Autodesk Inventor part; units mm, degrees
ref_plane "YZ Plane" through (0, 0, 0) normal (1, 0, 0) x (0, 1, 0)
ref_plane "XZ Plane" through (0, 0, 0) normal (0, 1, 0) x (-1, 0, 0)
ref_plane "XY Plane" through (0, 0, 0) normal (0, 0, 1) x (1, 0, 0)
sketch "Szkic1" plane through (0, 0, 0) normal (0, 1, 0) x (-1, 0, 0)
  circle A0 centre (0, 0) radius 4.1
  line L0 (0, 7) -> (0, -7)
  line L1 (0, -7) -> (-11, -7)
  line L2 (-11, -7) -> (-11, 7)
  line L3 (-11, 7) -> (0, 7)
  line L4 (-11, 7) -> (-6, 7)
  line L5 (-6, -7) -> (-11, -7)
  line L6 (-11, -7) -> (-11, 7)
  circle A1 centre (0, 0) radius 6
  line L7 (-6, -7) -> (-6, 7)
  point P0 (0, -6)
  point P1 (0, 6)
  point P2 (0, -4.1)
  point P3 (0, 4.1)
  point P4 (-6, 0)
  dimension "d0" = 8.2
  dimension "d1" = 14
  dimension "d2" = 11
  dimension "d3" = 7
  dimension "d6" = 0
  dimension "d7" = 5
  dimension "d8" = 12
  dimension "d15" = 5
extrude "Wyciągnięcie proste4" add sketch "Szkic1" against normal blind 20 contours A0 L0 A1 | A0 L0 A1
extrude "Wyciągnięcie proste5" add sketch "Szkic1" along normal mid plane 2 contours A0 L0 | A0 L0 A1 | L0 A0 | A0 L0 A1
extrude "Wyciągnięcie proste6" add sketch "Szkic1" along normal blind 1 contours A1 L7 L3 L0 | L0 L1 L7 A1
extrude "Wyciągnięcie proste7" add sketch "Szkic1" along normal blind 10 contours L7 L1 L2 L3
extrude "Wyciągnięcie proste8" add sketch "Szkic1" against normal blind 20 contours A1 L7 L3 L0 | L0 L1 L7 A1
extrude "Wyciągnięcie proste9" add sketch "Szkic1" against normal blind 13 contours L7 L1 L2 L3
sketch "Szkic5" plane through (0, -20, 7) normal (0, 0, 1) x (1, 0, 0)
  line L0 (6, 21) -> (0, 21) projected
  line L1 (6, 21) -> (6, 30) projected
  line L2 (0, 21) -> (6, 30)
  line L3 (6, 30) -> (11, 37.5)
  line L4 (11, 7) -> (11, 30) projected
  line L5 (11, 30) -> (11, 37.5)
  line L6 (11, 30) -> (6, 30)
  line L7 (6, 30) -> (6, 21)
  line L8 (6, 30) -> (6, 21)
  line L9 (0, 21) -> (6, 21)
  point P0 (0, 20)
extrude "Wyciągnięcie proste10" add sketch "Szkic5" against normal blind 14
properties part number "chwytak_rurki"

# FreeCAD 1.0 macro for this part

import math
import FreeCAD as App
import Part
import Sketcher
Q = App.Units.Quantity


def add_polygon(sketch, points):
    """Adds a closed chain of lines whose ends are joined by coincident constraints."""
    first, n = sketch.GeometryCount, len(points)
    for a, b in zip(points, points[1:] + points[:1]):
        sketch.addGeometry(Part.LineSegment(App.Vector(*a, 0), App.Vector(*b, 0)), False)
    for i in range(n):
        sketch.addConstraint(Sketcher.Constraint("Coincident", first + i, 2, first + (i + 1) % n, 1))

doc = App.newDocument("Part")
body = doc.addObject("PartDesign::Body", "Body")

# Sketch on XZ plane
sketch1 = body.newObject("Sketcher::SketchObject", "Sketch")
sketch1.AttachmentSupport = (doc.getObject("XZ_Plane"), [""])
sketch1.MapMode = "FlatFace"
sketch1.addGeometry([
    Part.Circle(App.Vector(0, 0, 0), App.Vector(0, 0, 1), 6),
    Part.Circle(App.Vector(0, 0, 0), App.Vector(0, 0, 1), 4.1),
], False)
sketch1.addConstraint([
    Sketcher.Constraint("Coincident", 0, 3, -1, 1),
    Sketcher.Constraint("Coincident", 1, 3, -1, 1),
    Sketcher.Constraint("Diameter", 0, Q("12 mm")),
    Sketcher.Constraint("Diameter", 1, Q("8.2 mm")),
])
pad1 = body.newObject("PartDesign::Pad", "Pad")
pad1.Profile = sketch1
pad1.Length = 20

# Sketch on XZ plane
sketch2 = body.newObject("Sketcher::SketchObject", "Sketch001")
sketch2.AttachmentSupport = (doc.getObject("XZ_Plane"), [""])
sketch2.MapMode = "FlatFace"
sketch2.addGeometry(Part.Circle(App.Vector(0, 0, 0), App.Vector(0, 0, 1), 6), False)
sketch2.addConstraint([
    Sketcher.Constraint("Coincident", 0, 3, -1, 1),
    Sketcher.Constraint("Diameter", 0, Q("12 mm")),
])
pad2 = body.newObject("PartDesign::Pad", "Pad001")
pad2.Profile = sketch2
pad2.Length = 2
pad2.Midplane = True

# Sketch on XZ plane
sketch3 = body.newObject("Sketcher::SketchObject", "Sketch002")
sketch3.AttachmentSupport = (doc.getObject("XZ_Plane"), [""])
sketch3.MapMode = "FlatFace"
sketch3.addGeometry([
    Part.ArcOfCircle(Part.Circle(App.Vector(0, 0, 0), App.Vector(0, 0, 1), 6), math.radians(0), math.radians(90)),  # 0
    Part.LineSegment(App.Vector(0, 6, 0), App.Vector(0, 7, 0)),  # 1
    Part.LineSegment(App.Vector(0, 7, 0), App.Vector(6, 7, 0)),  # 2
    Part.LineSegment(App.Vector(6, 7, 0), App.Vector(6, 0, 0)),  # 3
    Part.LineSegment(App.Vector(0, -7, 0), App.Vector(0, -6, 0)),  # 4
    Part.ArcOfCircle(Part.Circle(App.Vector(0, 0, 0), App.Vector(0, 0, 1), 6), math.radians(-90), math.radians(0)),  # 5
    Part.LineSegment(App.Vector(6, 0, 0), App.Vector(6, -7, 0)),  # 6
    Part.LineSegment(App.Vector(6, -7, 0), App.Vector(0, -7, 0)),  # 7
], False)
sketch3.addConstraint([
    Sketcher.Constraint("Coincident", 0, 2, 1, 1),
    Sketcher.Constraint("Coincident", 1, 2, 2, 1),
    Sketcher.Constraint("Coincident", 2, 2, 3, 1),
    Sketcher.Constraint("Tangent", 3, 2, 0, 1),
    Sketcher.Constraint("Coincident", 4, 2, 5, 1),
    Sketcher.Constraint("Tangent", 5, 2, 6, 1),
    Sketcher.Constraint("Coincident", 6, 2, 7, 1),
    Sketcher.Constraint("Coincident", 7, 2, 4, 1),
    Sketcher.Constraint("Vertical", 1),
    Sketcher.Constraint("Horizontal", 2),
    Sketcher.Constraint("Vertical", 3),
    Sketcher.Constraint("Vertical", 4),
    Sketcher.Constraint("Vertical", 6),
    Sketcher.Constraint("Horizontal", 7),
    Sketcher.Constraint("Coincident", 0, 3, -1, 1),
    Sketcher.Constraint("Coincident", 5, 3, -1, 1),
    Sketcher.Constraint("Equal", 0, 5),
    Sketcher.Constraint("Symmetric", 1, 2, 7, 2, -1, 1),
    Sketcher.Constraint("PointOnObject", 0, 2, -2),
    Sketcher.Constraint("Radius", 0, Q("6 mm")),
    Sketcher.Constraint("DistanceY", 3, 2, 3, 1, Q("7 mm")),
])
pad3 = body.newObject("PartDesign::Pad", "Pad002")
pad3.Profile = sketch3
pad3.Length = 1
pad3.Reversed = True

# Sketch on XZ plane
sketch4 = body.newObject("Sketcher::SketchObject", "Sketch003")
sketch4.AttachmentSupport = (doc.getObject("XZ_Plane"), [""])
sketch4.MapMode = "FlatFace"
add_polygon(sketch4, [(6, -7), (6, 7), (11, 7), (11, -7)])  # lines 0-3
sketch4.addConstraint([
    Sketcher.Constraint("Vertical", 0),
    Sketcher.Constraint("Horizontal", 1),
    Sketcher.Constraint("Vertical", 2),
    Sketcher.Constraint("Horizontal", 3),
    Sketcher.Constraint("DistanceX", 1, 1, 1, 2, Q("5 mm")),
    Sketcher.Constraint("DistanceY", 0, 1, 0, 2, Q("14 mm")),
    Sketcher.Constraint("DistanceY", -1, 1, 0, 2, Q("7 mm")),
    Sketcher.Constraint("DistanceX", -1, 1, 1, 2, Q("11 mm")),
])
pad4 = body.newObject("PartDesign::Pad", "Pad003")
pad4.Profile = sketch4
pad4.Length = 10
pad4.Reversed = True

# Sketch on XZ plane
sketch5 = body.newObject("Sketcher::SketchObject", "Sketch004")
sketch5.AttachmentSupport = (doc.getObject("XZ_Plane"), [""])
sketch5.MapMode = "FlatFace"
sketch5.addGeometry([
    Part.ArcOfCircle(Part.Circle(App.Vector(0, 0, 0), App.Vector(0, 0, 1), 6), math.radians(0), math.radians(90)),  # 0
    Part.LineSegment(App.Vector(0, 6, 0), App.Vector(0, 7, 0)),  # 1
    Part.LineSegment(App.Vector(0, 7, 0), App.Vector(6, 7, 0)),  # 2
    Part.LineSegment(App.Vector(6, 7, 0), App.Vector(6, 0, 0)),  # 3
    Part.LineSegment(App.Vector(0, -7, 0), App.Vector(0, -6, 0)),  # 4
    Part.ArcOfCircle(Part.Circle(App.Vector(0, 0, 0), App.Vector(0, 0, 1), 6), math.radians(-90), math.radians(0)),  # 5
    Part.LineSegment(App.Vector(6, 0, 0), App.Vector(6, -7, 0)),  # 6
    Part.LineSegment(App.Vector(6, -7, 0), App.Vector(0, -7, 0)),  # 7
], False)
sketch5.addConstraint([
    Sketcher.Constraint("Coincident", 0, 2, 1, 1),
    Sketcher.Constraint("Coincident", 1, 2, 2, 1),
    Sketcher.Constraint("Coincident", 2, 2, 3, 1),
    Sketcher.Constraint("Tangent", 3, 2, 0, 1),
    Sketcher.Constraint("Coincident", 4, 2, 5, 1),
    Sketcher.Constraint("Tangent", 5, 2, 6, 1),
    Sketcher.Constraint("Coincident", 6, 2, 7, 1),
    Sketcher.Constraint("Coincident", 7, 2, 4, 1),
    Sketcher.Constraint("Vertical", 1),
    Sketcher.Constraint("Horizontal", 2),
    Sketcher.Constraint("Vertical", 3),
    Sketcher.Constraint("Vertical", 4),
    Sketcher.Constraint("Vertical", 6),
    Sketcher.Constraint("Horizontal", 7),
    Sketcher.Constraint("Coincident", 0, 3, -1, 1),
    Sketcher.Constraint("Coincident", 5, 3, -1, 1),
    Sketcher.Constraint("Equal", 0, 5),
    Sketcher.Constraint("Symmetric", 1, 2, 7, 2, -1, 1),
    Sketcher.Constraint("PointOnObject", 0, 2, -2),
    Sketcher.Constraint("Radius", 0, Q("6 mm")),
    Sketcher.Constraint("DistanceY", 3, 2, 3, 1, Q("7 mm")),
])
pad5 = body.newObject("PartDesign::Pad", "Pad004")
pad5.Profile = sketch5
pad5.Length = 20

# Sketch on XZ plane
sketch6 = body.newObject("Sketcher::SketchObject", "Sketch005")
sketch6.AttachmentSupport = (doc.getObject("XZ_Plane"), [""])
sketch6.MapMode = "FlatFace"
add_polygon(sketch6, [(6, -7), (6, 7), (11, 7), (11, -7)])  # lines 0-3
sketch6.addConstraint([
    Sketcher.Constraint("Vertical", 0),
    Sketcher.Constraint("Horizontal", 1),
    Sketcher.Constraint("Vertical", 2),
    Sketcher.Constraint("Horizontal", 3),
    Sketcher.Constraint("DistanceX", 1, 1, 1, 2, Q("5 mm")),
    Sketcher.Constraint("DistanceY", 0, 1, 0, 2, Q("14 mm")),
    Sketcher.Constraint("DistanceY", -1, 1, 0, 2, Q("7 mm")),
    Sketcher.Constraint("DistanceX", -1, 1, 1, 2, Q("11 mm")),
])
pad6 = body.newObject("PartDesign::Pad", "Pad005")
pad6.Profile = sketch6
pad6.Length = 13

# Sketch on XY plane
sketch7 = body.newObject("Sketcher::SketchObject", "Sketch006")
sketch7.AttachmentSupport = (doc.getObject("XY_Plane"), [""])
sketch7.MapMode = "FlatFace"
sketch7.AttachmentOffset = App.Placement(App.Vector(0, 0, 7), App.Rotation())
add_polygon(sketch7, [(11, 17.5), (6, 10), (11, 10)])  # lines 0-2
add_polygon(sketch7, [(0, 1), (6, 1), (6, 10)])  # lines 3-5
sketch7.addConstraint([
    Sketcher.Constraint("Horizontal", 1),
    Sketcher.Constraint("Vertical", 2),
    Sketcher.Constraint("Horizontal", 3),
    Sketcher.Constraint("Vertical", 4),
    Sketcher.Constraint("Coincident", 4, 2, 0, 2),
    Sketcher.Constraint("PointOnObject", 5, 2, -2),
    Sketcher.Constraint("Parallel", 0, 5),
    Sketcher.Constraint("DistanceX", 1, 1, 1, 2, Q("5 mm")),
    Sketcher.Constraint("DistanceX", 3, 1, 3, 2, Q("6 mm")),
    Sketcher.Constraint("DistanceY", 4, 1, 4, 2, Q("9 mm")),
    Sketcher.Constraint("DistanceY", -1, 1, 0, 2, Q("10 mm")),
])
pad7 = body.newObject("PartDesign::Pad", "Pad006")
pad7.Profile = sketch7
pad7.Length = 14
pad7.Reversed = True

doc.recompute()
